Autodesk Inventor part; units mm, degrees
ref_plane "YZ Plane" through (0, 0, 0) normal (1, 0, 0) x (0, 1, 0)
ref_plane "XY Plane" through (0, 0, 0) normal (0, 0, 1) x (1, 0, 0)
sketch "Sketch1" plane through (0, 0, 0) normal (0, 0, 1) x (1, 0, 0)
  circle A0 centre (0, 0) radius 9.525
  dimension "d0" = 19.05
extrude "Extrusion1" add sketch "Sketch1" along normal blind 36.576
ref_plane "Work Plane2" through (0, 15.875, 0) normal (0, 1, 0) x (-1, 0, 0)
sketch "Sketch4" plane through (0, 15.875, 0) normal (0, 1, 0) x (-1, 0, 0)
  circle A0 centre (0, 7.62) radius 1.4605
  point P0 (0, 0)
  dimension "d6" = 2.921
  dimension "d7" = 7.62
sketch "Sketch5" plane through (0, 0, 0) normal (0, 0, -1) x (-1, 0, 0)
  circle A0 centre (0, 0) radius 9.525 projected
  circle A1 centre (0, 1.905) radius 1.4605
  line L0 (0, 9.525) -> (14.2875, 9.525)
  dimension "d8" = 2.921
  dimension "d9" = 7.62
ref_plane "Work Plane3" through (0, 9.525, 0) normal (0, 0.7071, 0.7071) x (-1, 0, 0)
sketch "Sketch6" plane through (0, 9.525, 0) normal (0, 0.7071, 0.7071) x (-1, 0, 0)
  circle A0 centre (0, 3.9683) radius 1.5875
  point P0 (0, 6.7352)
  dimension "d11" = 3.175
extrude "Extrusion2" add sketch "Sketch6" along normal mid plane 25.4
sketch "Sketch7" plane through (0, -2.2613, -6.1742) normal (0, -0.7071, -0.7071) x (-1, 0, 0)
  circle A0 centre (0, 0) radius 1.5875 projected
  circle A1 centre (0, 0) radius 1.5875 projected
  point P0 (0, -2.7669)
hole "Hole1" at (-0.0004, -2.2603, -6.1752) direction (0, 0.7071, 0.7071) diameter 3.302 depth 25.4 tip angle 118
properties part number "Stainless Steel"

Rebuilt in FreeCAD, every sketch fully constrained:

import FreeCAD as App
import Part
import Sketcher
from FreeCAD import Vector
Q = App.Units.Quantity

doc = App.newDocument("Part")
params = doc.addObject("Spreadsheet::Sheet", "Params")
for row, (alias, value) in enumerate([
    ("sketch1_diameter", "0.75 in"),
    ("pad1_length", "1.44 in"),
    ("sketch2_diameter", "0.125 in"),
    ("pad2_length", "1 in"),
    ("sketch3_diameter", "0.13 in"),
    ("hole_diameter", "0.13 in"),
    ("hole_depth", "1 in"),
], start=1):
    params.set(f"A{row}", alias)
    params.set(f"B{row}", "=" + value)
    params.setAlias(f"B{row}", alias)

body = doc.addObject("PartDesign::Body", "Body")

sketch1 = doc.addObject("Sketcher::SketchObject", "Sketch")
body.addObject(sketch1)
sketch1.AttachmentSupport = (doc.XY_Plane, [""])
sketch1.MapMode = "FlatFace"
sketch1.addGeometry(Part.Circle(Vector(0, 0, 0), Vector(0, 0, 1), 10), False)
sketch1.addConstraint([
    Sketcher.Constraint("Coincident", 0, 3, -1, 1),
    Sketcher.Constraint("Diameter", 0, Q("0.75 in")),
])
sketch1.setExpression("Constraints[1]", "Params.sketch1_diameter")
pad1 = doc.addObject("PartDesign::Pad", "Pad")
body.addObject(pad1)
pad1.Profile = sketch1
pad1.setExpression("Length", "Params.pad1_length")

sketch2 = doc.addObject("Sketcher::SketchObject", "Sketch001")
body.addObject(sketch2)
sketch2.Placement = App.Placement(Vector(0, 9.525, 0), App.Rotation(Vector(-1, 0, 0), Vector(0, -0.707106781, 0.707106781), Vector(0, 0.707106781, 0.707106781), "ZXY"))
sketch2.addGeometry(Part.Circle(Vector(0, 4, 0), Vector(0, 0, 1), 1.6), False)
sketch2.addConstraint([
    Sketcher.Constraint("PointOnObject", 0, 3, -2),
    Sketcher.Constraint("Diameter", 0, Q("0.125 in")),
    Sketcher.Constraint("DistanceY", -1, 1, 0, 3, Q("3.9683 mm")),
])
sketch2.setExpression("Constraints[1]", "Params.sketch2_diameter")
pad2 = doc.addObject("PartDesign::Pad", "Pad001")
body.addObject(pad2)
pad2.Profile = sketch2
pad2.setExpression("Length", "Params.pad2_length")
pad2.Midplane = True

sketch3 = doc.addObject("Sketcher::SketchObject", "Sketch002")
body.addObject(sketch3)
sketch3.Placement = App.Placement(Vector(0, -4.21775, -4.21775), App.Rotation(Vector(0, 0.707106781, -0.707106781), Vector(0.999999999, 0, 0), Vector(0, -0.707106781, -0.707106781), "ZXY"))
sketch3.addGeometry(Part.Circle(Vector(2.8, 0, 0), Vector(0, 0, 1), 1.7), False)
sketch3.addConstraint([
    Sketcher.Constraint("Diameter", 0, Q("0.13 in")),
    Sketcher.Constraint("DistanceX", -1, 1, 0, 3, Q("0.1089882 in")),
    Sketcher.Constraint("DistanceY", 0, 3, -1, 1, Q("0.0004 mm")),
])
sketch3.setExpression("Constraints[0]", "Params.sketch3_diameter")
doc.recompute()
hole = doc.addObject("PartDesign::Hole", "Hole")
body.addObject(hole)
hole.Profile = sketch3
hole.ThreadType = "None"
hole.setExpression("Diameter", "Params.hole_diameter")
hole.DepthType = "Dimension"
hole.setExpression("Depth", "Params.hole_depth")
hole.DrillPoint = "Angled"
hole.DrillPointAngle = 118

doc.recompute()
